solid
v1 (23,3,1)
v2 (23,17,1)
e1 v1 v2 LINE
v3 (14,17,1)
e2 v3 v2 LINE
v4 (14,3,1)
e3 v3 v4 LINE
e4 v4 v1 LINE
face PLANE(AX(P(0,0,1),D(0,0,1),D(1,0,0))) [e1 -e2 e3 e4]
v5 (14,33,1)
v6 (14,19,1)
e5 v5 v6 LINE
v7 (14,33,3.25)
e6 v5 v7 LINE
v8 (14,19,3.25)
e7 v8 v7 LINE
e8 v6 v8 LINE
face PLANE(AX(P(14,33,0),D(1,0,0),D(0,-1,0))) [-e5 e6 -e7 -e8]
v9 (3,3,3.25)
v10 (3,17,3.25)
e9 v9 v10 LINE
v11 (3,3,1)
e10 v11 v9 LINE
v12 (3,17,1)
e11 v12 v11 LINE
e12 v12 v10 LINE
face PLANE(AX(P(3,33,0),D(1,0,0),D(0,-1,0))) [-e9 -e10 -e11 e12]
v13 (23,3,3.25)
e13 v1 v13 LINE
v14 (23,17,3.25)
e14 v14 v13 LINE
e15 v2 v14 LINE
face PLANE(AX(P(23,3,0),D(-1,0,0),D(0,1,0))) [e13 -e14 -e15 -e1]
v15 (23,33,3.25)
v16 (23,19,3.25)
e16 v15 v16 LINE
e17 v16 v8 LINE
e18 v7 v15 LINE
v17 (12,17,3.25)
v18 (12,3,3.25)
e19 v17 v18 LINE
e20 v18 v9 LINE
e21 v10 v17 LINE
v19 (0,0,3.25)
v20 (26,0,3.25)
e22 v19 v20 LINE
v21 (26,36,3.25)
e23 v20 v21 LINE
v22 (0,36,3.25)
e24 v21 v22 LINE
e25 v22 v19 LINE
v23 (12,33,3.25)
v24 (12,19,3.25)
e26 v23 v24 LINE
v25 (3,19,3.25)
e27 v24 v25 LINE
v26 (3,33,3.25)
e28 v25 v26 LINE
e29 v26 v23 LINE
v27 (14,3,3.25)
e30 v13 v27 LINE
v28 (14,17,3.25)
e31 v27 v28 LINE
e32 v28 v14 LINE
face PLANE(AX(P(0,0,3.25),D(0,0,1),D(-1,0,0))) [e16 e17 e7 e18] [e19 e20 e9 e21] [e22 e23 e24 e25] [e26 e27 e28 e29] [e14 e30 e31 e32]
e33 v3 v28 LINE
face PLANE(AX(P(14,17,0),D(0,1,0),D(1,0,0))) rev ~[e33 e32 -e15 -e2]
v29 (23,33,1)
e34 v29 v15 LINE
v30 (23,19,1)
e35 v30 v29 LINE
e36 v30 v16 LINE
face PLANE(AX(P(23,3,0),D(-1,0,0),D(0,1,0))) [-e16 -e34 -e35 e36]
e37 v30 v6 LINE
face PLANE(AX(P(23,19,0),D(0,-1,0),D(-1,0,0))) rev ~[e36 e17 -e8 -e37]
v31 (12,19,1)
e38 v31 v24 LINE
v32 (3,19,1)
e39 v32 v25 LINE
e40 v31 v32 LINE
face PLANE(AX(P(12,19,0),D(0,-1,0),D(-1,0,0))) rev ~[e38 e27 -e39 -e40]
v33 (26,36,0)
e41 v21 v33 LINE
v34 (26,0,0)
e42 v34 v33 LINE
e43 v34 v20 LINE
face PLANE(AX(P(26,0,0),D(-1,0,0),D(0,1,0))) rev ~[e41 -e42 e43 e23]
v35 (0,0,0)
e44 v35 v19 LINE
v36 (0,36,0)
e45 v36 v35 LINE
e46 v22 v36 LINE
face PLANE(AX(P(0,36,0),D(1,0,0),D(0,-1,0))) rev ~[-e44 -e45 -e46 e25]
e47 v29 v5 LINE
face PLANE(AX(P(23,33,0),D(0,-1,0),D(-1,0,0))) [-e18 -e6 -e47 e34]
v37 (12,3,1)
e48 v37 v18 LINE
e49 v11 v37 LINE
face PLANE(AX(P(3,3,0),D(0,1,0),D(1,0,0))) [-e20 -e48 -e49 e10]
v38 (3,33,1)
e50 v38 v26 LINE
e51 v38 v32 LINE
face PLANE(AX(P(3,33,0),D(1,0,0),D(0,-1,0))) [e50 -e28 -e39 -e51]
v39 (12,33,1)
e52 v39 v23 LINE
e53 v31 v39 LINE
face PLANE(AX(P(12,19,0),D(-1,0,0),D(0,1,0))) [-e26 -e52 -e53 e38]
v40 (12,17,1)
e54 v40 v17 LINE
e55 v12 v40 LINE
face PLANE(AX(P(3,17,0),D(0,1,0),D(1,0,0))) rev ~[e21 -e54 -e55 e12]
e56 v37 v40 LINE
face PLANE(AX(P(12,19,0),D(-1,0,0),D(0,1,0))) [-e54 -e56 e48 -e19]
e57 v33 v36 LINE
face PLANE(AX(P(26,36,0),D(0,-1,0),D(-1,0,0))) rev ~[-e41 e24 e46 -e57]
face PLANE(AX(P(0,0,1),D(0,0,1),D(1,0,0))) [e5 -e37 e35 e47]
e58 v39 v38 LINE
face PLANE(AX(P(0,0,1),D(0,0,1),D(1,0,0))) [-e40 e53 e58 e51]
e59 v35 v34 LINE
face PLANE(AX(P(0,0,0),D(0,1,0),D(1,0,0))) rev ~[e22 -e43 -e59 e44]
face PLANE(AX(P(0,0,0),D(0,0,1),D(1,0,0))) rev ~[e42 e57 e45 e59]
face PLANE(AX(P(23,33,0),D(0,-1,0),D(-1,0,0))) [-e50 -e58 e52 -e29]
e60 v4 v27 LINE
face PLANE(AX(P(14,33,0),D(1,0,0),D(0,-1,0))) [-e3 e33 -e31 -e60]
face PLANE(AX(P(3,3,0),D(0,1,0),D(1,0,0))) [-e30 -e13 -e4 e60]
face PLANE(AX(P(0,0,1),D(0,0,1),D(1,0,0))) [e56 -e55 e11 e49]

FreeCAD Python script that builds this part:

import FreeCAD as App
import Part
import Sketcher
from FreeCAD import Vector
Q = App.Units.Quantity


def add_polygon(sketch, points):
    """Adds a closed chain of lines whose ends are joined by coincident constraints."""
    first, n = sketch.GeometryCount, len(points)
    for a, b in zip(points, points[1:] + points[:1]):
        sketch.addGeometry(Part.LineSegment(App.Vector(*a, 0), App.Vector(*b, 0)), False)
    for i in range(n):
        sketch.addConstraint(Sketcher.Constraint("Coincident", first + i, 2, first + (i + 1) % n, 1))

doc = App.newDocument("Part")
body = doc.addObject("PartDesign::Body", "Body")

sketch1 = body.newObject("Sketcher::SketchObject", "Sketch")
sketch1.AttachmentSupport = (doc.getObject("XY_Plane"), [""])
sketch1.MapMode = "FlatFace"
add_polygon(sketch1, [(0, 36), (0, 0), (26, 0), (26, 36)])
add_polygon(sketch1, [(23, 3), (3, 3), (3, 33), (23, 33)])
sketch1.addConstraint(Sketcher.Constraint("Vertical", 0))
sketch1.addConstraint(Sketcher.Constraint("Horizontal", 1))
sketch1.addConstraint(Sketcher.Constraint("Vertical", 2))
sketch1.addConstraint(Sketcher.Constraint("Horizontal", 3))
sketch1.addConstraint(Sketcher.Constraint("Horizontal", 4))
sketch1.addConstraint(Sketcher.Constraint("Vertical", 5))
sketch1.addConstraint(Sketcher.Constraint("Horizontal", 6))
sketch1.addConstraint(Sketcher.Constraint("Vertical", 7))
sketch1.addConstraint(Sketcher.Constraint("Coincident", 0, 2, -1, 1))
sketch1.addConstraint(Sketcher.Constraint("DistanceY", 5, 1, 5, 2, Q("30 mm")))
sketch1.addConstraint(Sketcher.Constraint("DistanceX", 1, 1, 1, 2, Q("26 mm")))
sketch1.addConstraint(Sketcher.Constraint("DistanceX", 4, 2, 4, 1, Q("20 mm")))
sketch1.addConstraint(Sketcher.Constraint("DistanceY", 0, 2, 0, 1, Q("36 mm")))
sketch1.addConstraint(Sketcher.Constraint("DistanceX", -1, 1, 4, 2, Q("3 mm")))
sketch1.addConstraint(Sketcher.Constraint("DistanceY", -1, 1, 4, 2, Q("3 mm")))
pad1 = body.newObject("PartDesign::Pad", "Pad")
pad1.Profile = sketch1
pad1.Length = 4

sketch2 = body.newObject("Sketcher::SketchObject", "Sketch001")
sketch2.AttachmentSupport = (doc.getObject("XY_Plane"), [""])
sketch2.MapMode = "FlatFace"
add_polygon(sketch2, [(14, 33), (12, 33), (12, 3), (14, 3)])
sketch2.addConstraint(Sketcher.Constraint("Horizontal", 0))
sketch2.addConstraint(Sketcher.Constraint("Vertical", 1))
sketch2.addConstraint(Sketcher.Constraint("Horizontal", 2))
sketch2.addConstraint(Sketcher.Constraint("Vertical", 3))
sketch2.addConstraint(Sketcher.Constraint("DistanceX", 0, 2, 0, 1, Q("2 mm")))
sketch2.addConstraint(Sketcher.Constraint("DistanceY", 1, 2, 1, 1, Q("30 mm")))
sketch2.addConstraint(Sketcher.Constraint("DistanceX", -1, 1, 0, 2, Q("12 mm")))
sketch2.addConstraint(Sketcher.Constraint("DistanceY", -1, 1, 0, 2, Q("33 mm")))
pad2 = body.newObject("PartDesign::Pad", "Pad001")
pad2.Profile = sketch2
pad2.Length = 4

sketch3 = body.newObject("Sketcher::SketchObject", "Sketch002")
sketch3.AttachmentSupport = (doc.getObject("XY_Plane"), [""])
sketch3.MapMode = "FlatFace"
add_polygon(sketch3, [(12, 17), (12, 19), (3, 19), (3, 17)])
sketch3.addConstraint(Sketcher.Constraint("Vertical", 0))
sketch3.addConstraint(Sketcher.Constraint("Horizontal", 1))
sketch3.addConstraint(Sketcher.Constraint("Vertical", 2))
sketch3.addConstraint(Sketcher.Constraint("Horizontal", 3))
sketch3.addConstraint(Sketcher.Constraint("DistanceX", 1, 2, 1, 1, Q("9 mm")))
sketch3.addConstraint(Sketcher.Constraint("DistanceY", 0, 1, 0, 2, Q("2 mm")))
sketch3.addConstraint(Sketcher.Constraint("DistanceX", -1, 1, 0, 2, Q("12 mm")))
sketch3.addConstraint(Sketcher.Constraint("DistanceY", -1, 1, 0, 2, Q("19 mm")))
pad3 = body.newObject("PartDesign::Pad", "Pad002")
pad3.Profile = sketch3
pad3.Length = 4

sketch4 = body.newObject("Sketcher::SketchObject", "Sketch003")
sketch4.AttachmentSupport = (doc.getObject("XY_Plane"), [""])
sketch4.MapMode = "FlatFace"
add_polygon(sketch4, [(23, 19), (14, 19), (14, 17), (23, 17)])
sketch4.addConstraint(Sketcher.Constraint("Horizontal", 0))
sketch4.addConstraint(Sketcher.Constraint("Vertical", 1))
sketch4.addConstraint(Sketcher.Constraint("Horizontal", 2))
sketch4.addConstraint(Sketcher.Constraint("Vertical", 3))
sketch4.addConstraint(Sketcher.Constraint("DistanceX", 0, 2, 0, 1, Q("9 mm")))
sketch4.addConstraint(Sketcher.Constraint("DistanceY", 1, 2, 1, 1, Q("2 mm")))
sketch4.addConstraint(Sketcher.Constraint("DistanceX", -1, 1, 0, 2, Q("14 mm")))
sketch4.addConstraint(Sketcher.Constraint("DistanceY", -1, 1, 0, 2, Q("19 mm")))
pad4 = body.newObject("PartDesign::Pad", "Pad003")
pad4.Profile = sketch4
pad4.Length = 4

sketch5 = body.newObject("Sketcher::SketchObject", "Sketch004")
sketch5.AttachmentSupport = (doc.getObject("XY_Plane"), [""])
sketch5.MapMode = "FlatFace"
add_polygon(sketch5, [(26, 0), (26, 36), (0, 36), (0, 0)])
sketch5.addConstraint(Sketcher.Constraint("Vertical", 0))
sketch5.addConstraint(Sketcher.Constraint("Horizontal", 1))
sketch5.addConstraint(Sketcher.Constraint("Vertical", 2))
sketch5.addConstraint(Sketcher.Constraint("Horizontal", 3))
sketch5.addConstraint(Sketcher.Constraint("Coincident", 2, 2, -1, 1))
sketch5.addConstraint(Sketcher.Constraint("DistanceX", 1, 2, 1, 1, Q("26 mm")))
sketch5.addConstraint(Sketcher.Constraint("DistanceY", 0, 1, 0, 2, Q("36 mm")))
pad5 = body.newObject("PartDesign::Pad", "Pad004")
pad5.Profile = sketch5
pad5.Length = 1

sketch6 = body.newObject("Sketcher::SketchObject", "Sketch005")
sketch6.AttachmentSupport = (doc.getObject("XY_Plane"), [""])
sketch6.MapMode = "FlatFace"
sketch6.AttachmentOffset = App.Placement(Vector(0, 0, 4), App.Rotation())
add_polygon(sketch6, [(26, 36), (0, 36), (0, 0), (26, 0)])
add_polygon(sketch6, [(23, 19), (14, 19), (14, 33), (23, 33)])
add_polygon(sketch6, [(12, 19), (3, 19), (3, 33), (12, 33)])
add_polygon(sketch6, [(14, 3), (14, 17), (23, 17), (23, 3)])
add_polygon(sketch6, [(3, 3), (3, 17), (12, 17), (12, 3)])
sketch6.addConstraint(Sketcher.Constraint("Horizontal", 0))
sketch6.addConstraint(Sketcher.Constraint("Vertical", 1))
sketch6.addConstraint(Sketcher.Constraint("Horizontal", 2))
sketch6.addConstraint(Sketcher.Constraint("Vertical", 3))
sketch6.addConstraint(Sketcher.Constraint("Horizontal", 4))
sketch6.addConstraint(Sketcher.Constraint("Vertical", 5))
sketch6.addConstraint(Sketcher.Constraint("Horizontal", 6))
sketch6.addConstraint(Sketcher.Constraint("Vertical", 7))
sketch6.addConstraint(Sketcher.Constraint("Horizontal", 8))
sketch6.addConstraint(Sketcher.Constraint("Vertical", 9))
sketch6.addConstraint(Sketcher.Constraint("Horizontal", 10))
sketch6.addConstraint(Sketcher.Constraint("Vertical", 11))
sketch6.addConstraint(Sketcher.Constraint("Vertical", 12))
sketch6.addConstraint(Sketcher.Constraint("Horizontal", 13))
sketch6.addConstraint(Sketcher.Constraint("Vertical", 14))
sketch6.addConstraint(Sketcher.Constraint("Horizontal", 15))
sketch6.addConstraint(Sketcher.Constraint("Vertical", 16))
sketch6.addConstraint(Sketcher.Constraint("Horizontal", 17))
sketch6.addConstraint(Sketcher.Constraint("Vertical", 18))
sketch6.addConstraint(Sketcher.Constraint("Horizontal", 19))
sketch6.addConstraint(Sketcher.Constraint("Coincident", 1, 2, -1, 1))
sketch6.addConstraint(Sketcher.Constraint("Horizontal", 7, 2, 8, 2))
sketch6.addConstraint(Sketcher.Constraint("Horizontal", 6, 2, 9, 2))
sketch6.addConstraint(Sketcher.Constraint("Horizontal", 13, 2, 16, 2))
sketch6.addConstraint(Sketcher.Constraint("Horizontal", 15, 2, 18, 2))
sketch6.addConstraint(Sketcher.Constraint("Vertical", 5, 2, 12, 2))
sketch6.addConstraint(Sketcher.Constraint("Vertical", 7, 2, 13, 2))
sketch6.addConstraint(Sketcher.Constraint("Vertical", 9, 2, 16, 2))
sketch6.addConstraint(Sketcher.Constraint("Vertical", 11, 2, 17, 2))
sketch6.addConstraint(Sketcher.Constraint("Equal", 6, 8))
sketch6.addConstraint(Sketcher.Constraint("Equal", 11, 12))
sketch6.addConstraint(Sketcher.Constraint("DistanceX", 0, 2, 0, 1, Q("26 mm")))
sketch6.addConstraint(Sketcher.Constraint("DistanceX", 4, 2, 4, 1, Q("9 mm")))
sketch6.addConstraint(Sketcher.Constraint("DistanceY", 1, 2, 1, 1, Q("36 mm")))
sketch6.addConstraint(Sketcher.Constraint("DistanceY", 5, 1, 5, 2, Q("14 mm")))
sketch6.addConstraint(Sketcher.Constraint("DistanceX", -1, 1, 4, 2, Q("14 mm")))
sketch6.addConstraint(Sketcher.Constraint("DistanceY", -1, 1, 4, 2, Q("19 mm")))
sketch6.addConstraint(Sketcher.Constraint("DistanceX", -1, 1, 8, 2, Q("3 mm")))
sketch6.addConstraint(Sketcher.Constraint("DistanceY", -1, 1, 12, 2, Q("17 mm")))
pocket1 = body.newObject("PartDesign::Pocket", "Pocket")
pocket1.Profile = sketch6
pocket1.Length = 0.75

doc.recompute()
